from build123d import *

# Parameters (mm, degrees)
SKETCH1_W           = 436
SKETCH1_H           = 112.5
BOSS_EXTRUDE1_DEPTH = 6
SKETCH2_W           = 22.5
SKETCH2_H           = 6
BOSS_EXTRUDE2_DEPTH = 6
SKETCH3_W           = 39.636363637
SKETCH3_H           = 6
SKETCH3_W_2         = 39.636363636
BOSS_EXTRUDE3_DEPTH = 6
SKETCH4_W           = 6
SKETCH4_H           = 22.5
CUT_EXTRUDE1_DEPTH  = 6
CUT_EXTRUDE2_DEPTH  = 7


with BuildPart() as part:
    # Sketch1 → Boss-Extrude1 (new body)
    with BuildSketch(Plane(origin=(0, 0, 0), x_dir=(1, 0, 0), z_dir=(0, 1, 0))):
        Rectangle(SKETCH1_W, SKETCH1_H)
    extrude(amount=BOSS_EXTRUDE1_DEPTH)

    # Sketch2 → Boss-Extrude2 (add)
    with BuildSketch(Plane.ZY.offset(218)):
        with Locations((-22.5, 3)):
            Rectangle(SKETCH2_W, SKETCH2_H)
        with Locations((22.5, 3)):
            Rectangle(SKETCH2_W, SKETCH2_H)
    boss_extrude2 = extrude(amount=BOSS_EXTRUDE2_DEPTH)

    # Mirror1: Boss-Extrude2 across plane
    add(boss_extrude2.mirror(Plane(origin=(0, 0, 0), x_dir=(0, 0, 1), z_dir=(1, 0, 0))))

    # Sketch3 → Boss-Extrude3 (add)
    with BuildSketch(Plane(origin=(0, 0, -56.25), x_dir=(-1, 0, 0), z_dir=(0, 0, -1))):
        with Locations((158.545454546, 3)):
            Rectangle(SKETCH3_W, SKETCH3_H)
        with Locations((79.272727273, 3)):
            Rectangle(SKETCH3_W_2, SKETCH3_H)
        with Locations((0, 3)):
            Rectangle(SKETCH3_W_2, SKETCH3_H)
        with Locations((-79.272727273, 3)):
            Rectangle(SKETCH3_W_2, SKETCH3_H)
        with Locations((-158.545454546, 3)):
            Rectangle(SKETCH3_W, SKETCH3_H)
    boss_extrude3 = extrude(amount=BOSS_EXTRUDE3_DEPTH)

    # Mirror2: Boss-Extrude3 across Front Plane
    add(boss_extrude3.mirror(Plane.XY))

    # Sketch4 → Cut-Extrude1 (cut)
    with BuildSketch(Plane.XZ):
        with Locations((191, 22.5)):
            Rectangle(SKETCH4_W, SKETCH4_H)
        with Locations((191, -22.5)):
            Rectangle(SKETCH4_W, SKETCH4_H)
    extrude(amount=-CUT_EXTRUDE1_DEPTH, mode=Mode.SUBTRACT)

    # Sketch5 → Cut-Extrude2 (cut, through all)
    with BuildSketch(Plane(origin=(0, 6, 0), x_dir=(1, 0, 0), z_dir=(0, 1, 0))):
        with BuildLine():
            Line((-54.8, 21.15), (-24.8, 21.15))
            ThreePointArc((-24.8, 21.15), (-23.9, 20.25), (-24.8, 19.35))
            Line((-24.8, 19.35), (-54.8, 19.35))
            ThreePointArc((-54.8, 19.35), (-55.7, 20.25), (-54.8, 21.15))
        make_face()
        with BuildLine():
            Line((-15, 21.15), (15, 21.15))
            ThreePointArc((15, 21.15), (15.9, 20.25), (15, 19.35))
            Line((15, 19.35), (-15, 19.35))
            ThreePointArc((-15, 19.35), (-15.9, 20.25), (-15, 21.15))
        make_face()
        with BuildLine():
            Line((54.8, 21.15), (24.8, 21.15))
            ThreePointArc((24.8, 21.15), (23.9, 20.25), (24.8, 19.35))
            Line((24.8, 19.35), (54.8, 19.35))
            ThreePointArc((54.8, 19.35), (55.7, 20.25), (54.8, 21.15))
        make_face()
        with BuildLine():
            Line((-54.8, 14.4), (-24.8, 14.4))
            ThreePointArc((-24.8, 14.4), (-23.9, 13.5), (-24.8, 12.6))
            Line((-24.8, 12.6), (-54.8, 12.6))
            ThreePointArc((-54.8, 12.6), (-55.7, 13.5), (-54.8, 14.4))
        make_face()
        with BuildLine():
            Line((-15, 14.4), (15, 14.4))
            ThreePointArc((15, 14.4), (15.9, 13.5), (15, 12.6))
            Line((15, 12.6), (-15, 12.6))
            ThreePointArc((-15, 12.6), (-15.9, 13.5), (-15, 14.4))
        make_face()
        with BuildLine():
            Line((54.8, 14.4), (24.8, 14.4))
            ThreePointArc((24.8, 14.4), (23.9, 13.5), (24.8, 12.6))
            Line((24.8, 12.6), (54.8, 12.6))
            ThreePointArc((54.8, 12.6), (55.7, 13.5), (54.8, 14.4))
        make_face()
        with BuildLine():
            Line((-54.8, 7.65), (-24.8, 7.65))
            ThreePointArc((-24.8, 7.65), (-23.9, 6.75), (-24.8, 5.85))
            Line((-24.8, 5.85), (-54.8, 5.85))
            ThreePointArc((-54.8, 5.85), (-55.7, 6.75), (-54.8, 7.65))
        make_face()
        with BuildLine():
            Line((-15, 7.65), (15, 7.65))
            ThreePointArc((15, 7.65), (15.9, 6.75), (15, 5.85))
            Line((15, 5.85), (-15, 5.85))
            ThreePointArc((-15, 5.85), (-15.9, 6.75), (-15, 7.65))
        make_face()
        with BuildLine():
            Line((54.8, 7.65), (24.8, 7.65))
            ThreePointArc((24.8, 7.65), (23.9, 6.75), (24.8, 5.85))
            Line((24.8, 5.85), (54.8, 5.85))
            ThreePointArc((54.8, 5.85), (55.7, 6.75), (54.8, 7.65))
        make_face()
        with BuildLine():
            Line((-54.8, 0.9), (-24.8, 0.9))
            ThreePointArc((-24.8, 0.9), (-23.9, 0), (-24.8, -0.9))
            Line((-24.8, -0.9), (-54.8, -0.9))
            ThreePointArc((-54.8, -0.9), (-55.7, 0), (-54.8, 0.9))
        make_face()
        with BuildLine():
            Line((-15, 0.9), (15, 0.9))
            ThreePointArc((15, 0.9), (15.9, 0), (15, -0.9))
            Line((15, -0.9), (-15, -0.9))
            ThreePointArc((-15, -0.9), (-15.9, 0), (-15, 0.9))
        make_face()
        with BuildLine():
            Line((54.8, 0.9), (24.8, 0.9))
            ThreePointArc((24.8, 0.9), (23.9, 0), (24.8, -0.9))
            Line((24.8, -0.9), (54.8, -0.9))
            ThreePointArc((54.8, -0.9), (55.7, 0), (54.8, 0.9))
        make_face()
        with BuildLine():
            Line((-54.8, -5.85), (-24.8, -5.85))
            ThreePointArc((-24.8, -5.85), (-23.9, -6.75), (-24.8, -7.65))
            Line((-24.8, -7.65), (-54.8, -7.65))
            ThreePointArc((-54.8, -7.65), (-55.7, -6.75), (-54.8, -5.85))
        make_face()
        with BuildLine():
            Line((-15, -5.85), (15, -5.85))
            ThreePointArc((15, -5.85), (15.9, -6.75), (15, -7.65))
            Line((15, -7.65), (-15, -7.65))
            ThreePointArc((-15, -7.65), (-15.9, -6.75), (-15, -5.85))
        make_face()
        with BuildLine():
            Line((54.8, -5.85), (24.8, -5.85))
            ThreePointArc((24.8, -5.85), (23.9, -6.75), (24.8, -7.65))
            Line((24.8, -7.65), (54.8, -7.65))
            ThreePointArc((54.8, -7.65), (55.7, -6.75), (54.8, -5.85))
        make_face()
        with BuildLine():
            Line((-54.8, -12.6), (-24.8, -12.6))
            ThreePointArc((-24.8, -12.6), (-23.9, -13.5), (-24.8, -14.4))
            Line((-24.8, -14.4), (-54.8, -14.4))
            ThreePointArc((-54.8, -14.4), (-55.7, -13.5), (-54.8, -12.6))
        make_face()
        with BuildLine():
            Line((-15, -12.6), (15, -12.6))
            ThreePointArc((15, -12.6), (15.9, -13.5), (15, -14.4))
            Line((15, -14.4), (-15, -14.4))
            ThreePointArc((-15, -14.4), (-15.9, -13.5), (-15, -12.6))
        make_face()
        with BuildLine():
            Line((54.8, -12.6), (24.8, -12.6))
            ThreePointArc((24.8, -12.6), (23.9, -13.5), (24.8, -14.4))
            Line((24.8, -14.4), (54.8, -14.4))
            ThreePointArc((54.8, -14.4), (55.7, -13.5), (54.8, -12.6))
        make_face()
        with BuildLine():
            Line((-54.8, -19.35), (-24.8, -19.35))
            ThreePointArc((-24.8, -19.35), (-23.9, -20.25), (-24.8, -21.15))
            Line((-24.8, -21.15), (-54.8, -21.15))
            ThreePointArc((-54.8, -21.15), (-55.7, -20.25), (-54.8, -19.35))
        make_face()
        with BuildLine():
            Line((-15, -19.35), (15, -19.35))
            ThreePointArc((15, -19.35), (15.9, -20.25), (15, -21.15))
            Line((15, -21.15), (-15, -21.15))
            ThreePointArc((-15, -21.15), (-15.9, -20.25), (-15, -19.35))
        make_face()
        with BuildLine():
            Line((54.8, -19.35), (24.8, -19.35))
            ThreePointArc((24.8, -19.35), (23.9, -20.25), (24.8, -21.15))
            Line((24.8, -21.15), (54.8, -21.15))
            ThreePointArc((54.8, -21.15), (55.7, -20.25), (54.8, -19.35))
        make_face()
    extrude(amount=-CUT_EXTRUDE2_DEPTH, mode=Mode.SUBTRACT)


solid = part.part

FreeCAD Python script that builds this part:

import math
import FreeCAD as App
import Part
import Sketcher
from FreeCAD import Vector


def add_polygon(sketch, points):
    """Adds a closed chain of lines whose ends are joined by coincident constraints."""
    first, n = sketch.GeometryCount, len(points)
    for a, b in zip(points, points[1:] + points[:1]):
        sketch.addGeometry(Part.LineSegment(App.Vector(*a, 0), App.Vector(*b, 0)), False)
    for i in range(n):
        sketch.addConstraint(Sketcher.Constraint("Coincident", first + i, 2, first + (i + 1) % n, 1))

doc = App.newDocument("Part")
body = doc.addObject("PartDesign::Body", "Body")

sketch1 = body.newObject("Sketcher::SketchObject", "Sketch")
sketch1.AttachmentSupport = (doc.getObject("XZ_Plane"), [""])
sketch1.MapMode = "FlatFace"
add_polygon(sketch1, [(-218, -56), (-218, 56), (218, 56), (218, -56)])
sketch1.addConstraint([
    Sketcher.Constraint("Vertical", 0),
    Sketcher.Constraint("Horizontal", 1),
    Sketcher.Constraint("Vertical", 2),
    Sketcher.Constraint("Horizontal", 3),
    Sketcher.Constraint("Symmetric", 0, 2, 2, 2, -1, 1),
    Sketcher.Constraint("DistanceX", 1, 1, 1, 2, 436.0),
    Sketcher.Constraint("DistanceY", 0, 1, 0, 2, 112.5),
])
pad1 = body.newObject("PartDesign::Pad", "Pad")
pad1.Profile = sketch1
pad1.Length = 6
pad1.Reversed = True

sketch2 = body.newObject("Sketcher::SketchObject", "Sketch001")
sketch2.AttachmentSupport = (doc.getObject("YZ_Plane"), [""])
sketch2.MapMode = "FlatFace"
sketch2.AttachmentOffset = App.Placement(Vector(0, 0, -218), App.Rotation())
add_polygon(sketch2, [(6, -34), (0, -34), (0, -11), (6, -11)])
add_polygon(sketch2, [(6, 11), (0, 11), (0, 34), (6, 34)])
sketch2.addConstraint([
    Sketcher.Constraint("Horizontal", 0),
    Sketcher.Constraint("Vertical", 1),
    Sketcher.Constraint("Horizontal", 2),
    Sketcher.Constraint("Vertical", 3),
    Sketcher.Constraint("Horizontal", 4),
    Sketcher.Constraint("Vertical", 5),
    Sketcher.Constraint("Horizontal", 6),
    Sketcher.Constraint("Vertical", 7),
    Sketcher.Constraint("Symmetric", 1, 2, 4, 2, -1, 1),
    Sketcher.Constraint("Symmetric", 0, 2, 5, 2, -1),
    Sketcher.Constraint("Vertical", 3, 2, 6, 2),
    Sketcher.Constraint("DistanceX", 0, 2, 0, 1, 6.0),
    Sketcher.Constraint("DistanceY", 1, 1, 1, 2, 22.5),
    Sketcher.Constraint("DistanceY", 0, 2, 4, 2, 45.0),
])
pad2 = body.newObject("PartDesign::Pad", "Pad001")
pad2.Profile = sketch2
pad2.Length = 6
pad2.Reversed = True
doc.recompute()

mirrored = body.newObject("PartDesign::Mirrored", "Mirrored")
mirrored.Originals = [pad2]
mirrored.MirrorPlane = (doc.getObject("YZ_Plane"), [""])
body.Tip = mirrored

sketch3 = body.newObject("Sketcher::SketchObject", "Sketch002")
sketch3.AttachmentSupport = (doc.getObject("XY_Plane"), [""])
sketch3.MapMode = "FlatFace"
sketch3.AttachmentOffset = App.Placement(Vector(0, 0, -56.25), App.Rotation())
add_polygon(sketch3, [(-139, 6), (-139, 0), (-178, 0), (-178, 6)])
add_polygon(sketch3, [(-59, 6), (-59, 0), (-99, 0), (-99, 6)])
add_polygon(sketch3, [(20, 6), (20, 0), (-20, 0), (-20, 6)])
add_polygon(sketch3, [(99, 6), (99, 0), (59, 0), (59, 6)])
add_polygon(sketch3, [(178, 6), (178, 0), (139, 0), (139, 6)])
sketch3.addConstraint([
    Sketcher.Constraint("Vertical", 0),
    Sketcher.Constraint("Horizontal", 1),
    Sketcher.Constraint("Vertical", 2),
    Sketcher.Constraint("Horizontal", 3),
    Sketcher.Constraint("Vertical", 4),
    Sketcher.Constraint("Horizontal", 5),
    Sketcher.Constraint("Vertical", 6),
    Sketcher.Constraint("Horizontal", 7),
    Sketcher.Constraint("Vertical", 8),
    Sketcher.Constraint("Horizontal", 9),
    Sketcher.Constraint("Vertical", 10),
    Sketcher.Constraint("Horizontal", 11),
    Sketcher.Constraint("Vertical", 12),
    Sketcher.Constraint("Horizontal", 13),
    Sketcher.Constraint("Vertical", 14),
    Sketcher.Constraint("Horizontal", 15),
    Sketcher.Constraint("Vertical", 16),
    Sketcher.Constraint("Horizontal", 17),
    Sketcher.Constraint("Vertical", 18),
    Sketcher.Constraint("Horizontal", 19),
    Sketcher.Constraint("Symmetric", 8, 2, 9, 2, -1, 1),
    Sketcher.Constraint("Symmetric", 5, 2, 12, 2, -1, 1),
    Sketcher.Constraint("Symmetric", 1, 2, 16, 2, -1, 1),
    Sketcher.Constraint("Symmetric", 4, 2, 13, 2, -2),
    Sketcher.Constraint("Symmetric", 0, 2, 17, 2, -2),
    Sketcher.Constraint("Horizontal", 3, 2, 6, 2),
    Sketcher.Constraint("Horizontal", 7, 2, 10, 2),
    Sketcher.Constraint("Horizontal", 11, 2, 14, 2),
    Sketcher.Constraint("Horizontal", 15, 2, 18, 2),
    Sketcher.Constraint("Equal", 3, 5),
    Sketcher.Constraint("Equal", 7, 9),
    Sketcher.Constraint("DistanceY", 0, 2, 0, 1, 6.0),
    Sketcher.Constraint("DistanceX", 1, 2, 1, 1, 39.636364),
    Sketcher.Constraint("DistanceX", 5, 2, -1, 1, 99.090909),
    Sketcher.Constraint("DistanceX", 1, 2, 4, 2, 118.909091),
])
pad3 = body.newObject("PartDesign::Pad", "Pad002")
pad3.Profile = sketch3
pad3.Length = 6
pad3.Reversed = True
doc.recompute()

mirrored2 = body.newObject("PartDesign::Mirrored", "Mirrored001")
mirrored2.Originals = [pad3]
mirrored2.MirrorPlane = (doc.getObject("XY_Plane"), [""])
body.Tip = mirrored2

sketch4 = body.newObject("Sketcher::SketchObject", "Sketch003")
sketch4.AttachmentSupport = (doc.getObject("XZ_Plane"), [""])
sketch4.MapMode = "FlatFace"
add_polygon(sketch4, [(188, 34), (188, 11), (194, 11), (194, 34)])
add_polygon(sketch4, [(188, -11), (188, -34), (194, -34), (194, -11)])
sketch4.addConstraint([
    Sketcher.Constraint("Vertical", 0),
    Sketcher.Constraint("Horizontal", 1),
    Sketcher.Constraint("Vertical", 2),
    Sketcher.Constraint("Horizontal", 3),
    Sketcher.Constraint("Vertical", 4),
    Sketcher.Constraint("Horizontal", 5),
    Sketcher.Constraint("Vertical", 6),
    Sketcher.Constraint("Horizontal", 7),
    Sketcher.Constraint("Symmetric", 3, 2, 4, 2, -1),
    Sketcher.Constraint("Symmetric", 1, 2, 6, 2, -1),
    Sketcher.Constraint("DistanceX", 1, 1, 1, 2, 6.0),
    Sketcher.Constraint("DistanceY", 0, 2, 0, 1, 22.5),
    Sketcher.Constraint("DistanceX", -1, 1, 0, 2, 188.0),
    Sketcher.Constraint("DistanceY", 4, 2, 0, 2, 45.0),
])
pocket1 = body.newObject("PartDesign::Pocket", "Pocket")
pocket1.Profile = sketch4
pocket1.Length = 6

sketch5 = body.newObject("Sketcher::SketchObject", "Sketch004")
sketch5.AttachmentSupport = (doc.getObject("XZ_Plane"), [""])
sketch5.MapMode = "FlatFace"
sketch5.AttachmentOffset = App.Placement(Vector(0, 0, -6), App.Rotation())
sketch5.addGeometry([
    Part.LineSegment(Vector(-24.8, -21.1, 0), Vector(-54.8, -21.1, 0)),
    Part.ArcOfCircle(Part.Circle(Vector(-54.8, -20.2, 0), Vector(0, 0, 1), 0.9), math.radians(90), math.radians(270)),
    Part.LineSegment(Vector(-54.8, -19.4, 0), Vector(-24.8, -19.4, 0)),
    Part.ArcOfCircle(Part.Circle(Vector(-24.8, -20.2, 0), Vector(0, 0, 1), 0.9), math.radians(-90), math.radians(90)),
    Part.LineSegment(Vector(15, -21.1, 0), Vector(-15, -21.1, 0)),
    Part.ArcOfCircle(Part.Circle(Vector(-15, -20.2, 0), Vector(0, 0, 1), 0.9), math.radians(90), math.radians(270)),
    Part.LineSegment(Vector(-15, -19.4, 0), Vector(15, -19.4, 0)),
    Part.ArcOfCircle(Part.Circle(Vector(15, -20.2, 0), Vector(0, 0, 1), 0.9), math.radians(-90), math.radians(90)),
    Part.LineSegment(Vector(54.8, -21.1, 0), Vector(24.8, -21.1, 0)),
    Part.ArcOfCircle(Part.Circle(Vector(24.8, -20.2, 0), Vector(0, 0, 1), 0.9), math.radians(90), math.radians(270)),
    Part.LineSegment(Vector(24.8, -19.4, 0), Vector(54.8, -19.4, 0)),
    Part.ArcOfCircle(Part.Circle(Vector(54.8, -20.2, 0), Vector(0, 0, 1), 0.9), math.radians(-90), math.radians(90)),
    Part.LineSegment(Vector(-24.8, -14.4, 0), Vector(-54.8, -14.4, 0)),
    Part.ArcOfCircle(Part.Circle(Vector(-54.8, -13.5, 0), Vector(0, 0, 1), 0.9), math.radians(90), math.radians(270)),
    Part.LineSegment(Vector(-54.8, -12.6, 0), Vector(-24.8, -12.6, 0)),
    Part.ArcOfCircle(Part.Circle(Vector(-24.8, -13.5, 0), Vector(0, 0, 1), 0.9), math.radians(-90), math.radians(90)),
    Part.LineSegment(Vector(15, -14.4, 0), Vector(-15, -14.4, 0)),
    Part.ArcOfCircle(Part.Circle(Vector(-15, -13.5, 0), Vector(0, 0, 1), 0.9), math.radians(90), math.radians(270)),
    Part.LineSegment(Vector(-15, -12.6, 0), Vector(15, -12.6, 0)),
    Part.ArcOfCircle(Part.Circle(Vector(15, -13.5, 0), Vector(0, 0, 1), 0.9), math.radians(-90), math.radians(90)),
    Part.LineSegment(Vector(54.8, -14.4, 0), Vector(24.8, -14.4, 0)),
    Part.ArcOfCircle(Part.Circle(Vector(24.8, -13.5, 0), Vector(0, 0, 1), 0.9), math.radians(90), math.radians(270)),
    Part.LineSegment(Vector(24.8, -12.6, 0), Vector(54.8, -12.6, 0)),
    Part.ArcOfCircle(Part.Circle(Vector(54.8, -13.5, 0), Vector(0, 0, 1), 0.9), math.radians(-90), math.radians(90)),
    Part.LineSegment(Vector(-24.8, -7.7, 0), Vector(-54.8, -7.7, 0)),
    Part.ArcOfCircle(Part.Circle(Vector(-54.8, -6.8, 0), Vector(0, 0, 1), 0.9), math.radians(90), math.radians(270)),
    Part.LineSegment(Vector(-54.8, -5.8, 0), Vector(-24.8, -5.8, 0)),
    Part.ArcOfCircle(Part.Circle(Vector(-24.8, -6.8, 0), Vector(0, 0, 1), 0.9), math.radians(-90), math.radians(90)),
    Part.LineSegment(Vector(15, -7.7, 0), Vector(-15, -7.7, 0)),
    Part.ArcOfCircle(Part.Circle(Vector(-15, -6.8, 0), Vector(0, 0, 1), 0.9), math.radians(90), math.radians(270)),
    Part.LineSegment(Vector(-15, -5.8, 0), Vector(15, -5.8, 0)),
    Part.ArcOfCircle(Part.Circle(Vector(15, -6.8, 0), Vector(0, 0, 1), 0.9), math.radians(-90), math.radians(90)),
    Part.LineSegment(Vector(54.8, -7.7, 0), Vector(24.8, -7.7, 0)),
    Part.ArcOfCircle(Part.Circle(Vector(24.8, -6.8, 0), Vector(0, 0, 1), 0.9), math.radians(90), math.radians(270)),
    Part.LineSegment(Vector(24.8, -5.8, 0), Vector(54.8, -5.8, 0)),
    Part.ArcOfCircle(Part.Circle(Vector(54.8, -6.8, 0), Vector(0, 0, 1), 0.9), math.radians(-90), math.radians(90)),
    Part.LineSegment(Vector(-24.8, -0.9, 0), Vector(-54.8, -0.9, 0)),
    Part.ArcOfCircle(Part.Circle(Vector(-54.8, 0, 0), Vector(0, 0, 1), 0.9), math.radians(90), math.radians(270)),
    Part.LineSegment(Vector(-54.8, 0.9, 0), Vector(-24.8, 0.9, 0)),
    Part.ArcOfCircle(Part.Circle(Vector(-24.8, 0, 0), Vector(0, 0, 1), 0.9), math.radians(-90), math.radians(90)),
    Part.LineSegment(Vector(15, -0.9, 0), Vector(-15, -0.9, 0)),
    Part.ArcOfCircle(Part.Circle(Vector(-15, 0, 0), Vector(0, 0, 1), 0.9), math.radians(90), math.radians(270)),
    Part.LineSegment(Vector(-15, 0.9, 0), Vector(15, 0.9, 0)),
    Part.ArcOfCircle(Part.Circle(Vector(15, 0, 0), Vector(0, 0, 1), 0.9), math.radians(-90), math.radians(90)),
    Part.LineSegment(Vector(54.8, -0.9, 0), Vector(24.8, -0.9, 0)),
    Part.ArcOfCircle(Part.Circle(Vector(24.8, 0, 0), Vector(0, 0, 1), 0.9), math.radians(90), math.radians(270)),
    Part.LineSegment(Vector(24.8, 0.9, 0), Vector(54.8, 0.9, 0)),
    Part.ArcOfCircle(Part.Circle(Vector(54.8, 0, 0), Vector(0, 0, 1), 0.9), math.radians(-90), math.radians(90)),
    Part.LineSegment(Vector(-24.8, 5.8, 0), Vector(-54.8, 5.8, 0)),
    Part.ArcOfCircle(Part.Circle(Vector(-54.8, 6.8, 0), Vector(0, 0, 1), 0.9), math.radians(90), math.radians(270)),
    Part.LineSegment(Vector(-54.8, 7.7, 0), Vector(-24.8, 7.7, 0)),
    Part.ArcOfCircle(Part.Circle(Vector(-24.8, 6.8, 0), Vector(0, 0, 1), 0.9), math.radians(-90), math.radians(90)),
    Part.LineSegment(Vector(15, 5.8, 0), Vector(-15, 5.8, 0)),
    Part.ArcOfCircle(Part.Circle(Vector(-15, 6.8, 0), Vector(0, 0, 1), 0.9), math.radians(90), math.radians(270)),
    Part.LineSegment(Vector(-15, 7.7, 0), Vector(15, 7.7, 0)),
    Part.ArcOfCircle(Part.Circle(Vector(15, 6.8, 0), Vector(0, 0, 1), 0.9), math.radians(-90), math.radians(90)),
    Part.LineSegment(Vector(54.8, 5.8, 0), Vector(24.8, 5.8, 0)),
    Part.ArcOfCircle(Part.Circle(Vector(24.8, 6.8, 0), Vector(0, 0, 1), 0.9), math.radians(90), math.radians(270)),
    Part.LineSegment(Vector(24.8, 7.7, 0), Vector(54.8, 7.7, 0)),
    Part.ArcOfCircle(Part.Circle(Vector(54.8, 6.8, 0), Vector(0, 0, 1), 0.9), math.radians(-90), math.radians(90)),
    Part.LineSegment(Vector(-24.8, 12.6, 0), Vector(-54.8, 12.6, 0)),
    Part.ArcOfCircle(Part.Circle(Vector(-54.8, 13.5, 0), Vector(0, 0, 1), 0.9), math.radians(90), math.radians(270)),
    Part.LineSegment(Vector(-54.8, 14.4, 0), Vector(-24.8, 14.4, 0)),
    Part.ArcOfCircle(Part.Circle(Vector(-24.8, 13.5, 0), Vector(0, 0, 1), 0.9), math.radians(-90), math.radians(90)),
    Part.LineSegment(Vector(15, 12.6, 0), Vector(-15, 12.6, 0)),
    Part.ArcOfCircle(Part.Circle(Vector(-15, 13.5, 0), Vector(0, 0, 1), 0.9), math.radians(90), math.radians(270)),
    Part.LineSegment(Vector(-15, 14.4, 0), Vector(15, 14.4, 0)),
    Part.ArcOfCircle(Part.Circle(Vector(15, 13.5, 0), Vector(0, 0, 1), 0.9), math.radians(-90), math.radians(90)),
    Part.LineSegment(Vector(54.8, 12.6, 0), Vector(24.8, 12.6, 0)),
    Part.ArcOfCircle(Part.Circle(Vector(24.8, 13.5, 0), Vector(0, 0, 1), 0.9), math.radians(90), math.radians(270)),
    Part.LineSegment(Vector(24.8, 14.4, 0), Vector(54.8, 14.4, 0)),
    Part.ArcOfCircle(Part.Circle(Vector(54.8, 13.5, 0), Vector(0, 0, 1), 0.9), math.radians(-90), math.radians(90)),
    Part.LineSegment(Vector(-24.8, 19.4, 0), Vector(-54.8, 19.4, 0)),
    Part.ArcOfCircle(Part.Circle(Vector(-54.8, 20.2, 0), Vector(0, 0, 1), 0.9), math.radians(90), math.radians(270)),
    Part.LineSegment(Vector(-54.8, 21.1, 0), Vector(-24.8, 21.1, 0)),
    Part.ArcOfCircle(Part.Circle(Vector(-24.8, 20.2, 0), Vector(0, 0, 1), 0.9), math.radians(-90), math.radians(90)),
    Part.LineSegment(Vector(15, 19.4, 0), Vector(-15, 19.4, 0)),
    Part.ArcOfCircle(Part.Circle(Vector(-15, 20.2, 0), Vector(0, 0, 1), 0.9), math.radians(90), math.radians(270)),
    Part.LineSegment(Vector(-15, 21.1, 0), Vector(15, 21.1, 0)),
    Part.ArcOfCircle(Part.Circle(Vector(15, 20.2, 0), Vector(0, 0, 1), 0.9), math.radians(-90), math.radians(90)),
    Part.LineSegment(Vector(54.8, 19.4, 0), Vector(24.8, 19.4, 0)),
    Part.ArcOfCircle(Part.Circle(Vector(24.8, 20.2, 0), Vector(0, 0, 1), 0.9), math.radians(90), math.radians(270)),
    Part.LineSegment(Vector(24.8, 21.1, 0), Vector(54.8, 21.1, 0)),
    Part.ArcOfCircle(Part.Circle(Vector(54.8, 20.2, 0), Vector(0, 0, 1), 0.9), math.radians(-90), math.radians(90)),
], False)
sketch5.addConstraint([
    Sketcher.Constraint("Tangent", 0, 2, 1, 2),
    Sketcher.Constraint("Tangent", 1, 1, 2, 1),
    Sketcher.Constraint("Tangent", 2, 2, 3, 2),
    Sketcher.Constraint("Tangent", 3, 1, 0, 1),
    Sketcher.Constraint("Tangent", 4, 2, 5, 2),
    Sketcher.Constraint("Tangent", 5, 1, 6, 1),
    Sketcher.Constraint("Tangent", 6, 2, 7, 2),
    Sketcher.Constraint("Tangent", 7, 1, 4, 1),
    Sketcher.Constraint("Tangent", 8, 2, 9, 2),
    Sketcher.Constraint("Tangent", 9, 1, 10, 1),
    Sketcher.Constraint("Tangent", 10, 2, 11, 2),
    Sketcher.Constraint("Tangent", 11, 1, 8, 1),
    Sketcher.Constraint("Tangent", 12, 2, 13, 2),
    Sketcher.Constraint("Tangent", 13, 1, 14, 1),
    Sketcher.Constraint("Tangent", 14, 2, 15, 2),
    Sketcher.Constraint("Tangent", 15, 1, 12, 1),
    Sketcher.Constraint("Tangent", 16, 2, 17, 2),
    Sketcher.Constraint("Tangent", 17, 1, 18, 1),
    Sketcher.Constraint("Tangent", 18, 2, 19, 2),
    Sketcher.Constraint("Tangent", 19, 1, 16, 1),
    Sketcher.Constraint("Tangent", 20, 2, 21, 2),
    Sketcher.Constraint("Tangent", 21, 1, 22, 1),
    Sketcher.Constraint("Tangent", 22, 2, 23, 2),
    Sketcher.Constraint("Tangent", 23, 1, 20, 1),
    Sketcher.Constraint("Tangent", 24, 2, 25, 2),
    Sketcher.Constraint("Tangent", 25, 1, 26, 1),
    Sketcher.Constraint("Tangent", 26, 2, 27, 2),
    Sketcher.Constraint("Tangent", 27, 1, 24, 1),
    Sketcher.Constraint("Tangent", 28, 2, 29, 2),
    Sketcher.Constraint("Tangent", 29, 1, 30, 1),
    Sketcher.Constraint("Tangent", 30, 2, 31, 2),
    Sketcher.Constraint("Tangent", 31, 1, 28, 1),
    Sketcher.Constraint("Tangent", 32, 2, 33, 2),
    Sketcher.Constraint("Tangent", 33, 1, 34, 1),
    Sketcher.Constraint("Tangent", 34, 2, 35, 2),
    Sketcher.Constraint("Tangent", 35, 1, 32, 1),
    Sketcher.Constraint("Tangent", 36, 2, 37, 2),
    Sketcher.Constraint("Tangent", 37, 1, 38, 1),
    Sketcher.Constraint("Tangent", 38, 2, 39, 2),
    Sketcher.Constraint("Tangent", 39, 1, 36, 1),
    Sketcher.Constraint("Tangent", 40, 2, 41, 2),
    Sketcher.Constraint("Tangent", 41, 1, 42, 1),
    Sketcher.Constraint("Tangent", 42, 2, 43, 2),
    Sketcher.Constraint("Tangent", 43, 1, 40, 1),
    Sketcher.Constraint("Tangent", 44, 2, 45, 2),
    Sketcher.Constraint("Tangent", 45, 1, 46, 1),
    Sketcher.Constraint("Tangent", 46, 2, 47, 2),
    Sketcher.Constraint("Tangent", 47, 1, 44, 1),
    Sketcher.Constraint("Tangent", 48, 2, 49, 2),
    Sketcher.Constraint("Tangent", 49, 1, 50, 1),
    Sketcher.Constraint("Tangent", 50, 2, 51, 2),
    Sketcher.Constraint("Tangent", 51, 1, 48, 1),
    Sketcher.Constraint("Tangent", 52, 2, 53, 2),
    Sketcher.Constraint("Tangent", 53, 1, 54, 1),
    Sketcher.Constraint("Tangent", 54, 2, 55, 2),
    Sketcher.Constraint("Tangent", 55, 1, 52, 1),
    Sketcher.Constraint("Tangent", 56, 2, 57, 2),
    Sketcher.Constraint("Tangent", 57, 1, 58, 1),
    Sketcher.Constraint("Tangent", 58, 2, 59, 2),
    Sketcher.Constraint("Tangent", 59, 1, 56, 1),
    Sketcher.Constraint("Tangent", 60, 2, 61, 2),
    Sketcher.Constraint("Tangent", 61, 1, 62, 1),
    Sketcher.Constraint("Tangent", 62, 2, 63, 2),
    Sketcher.Constraint("Tangent", 63, 1, 60, 1),
    Sketcher.Constraint("Tangent", 64, 2, 65, 2),
    Sketcher.Constraint("Tangent", 65, 1, 66, 1),
    Sketcher.Constraint("Tangent", 66, 2, 67, 2),
    Sketcher.Constraint("Tangent", 67, 1, 64, 1),
    Sketcher.Constraint("Tangent", 68, 2, 69, 2),
    Sketcher.Constraint("Tangent", 69, 1, 70, 1),
    Sketcher.Constraint("Tangent", 70, 2, 71, 2),
    Sketcher.Constraint("Tangent", 71, 1, 68, 1),
    Sketcher.Constraint("Tangent", 72, 2, 73, 2),
    Sketcher.Constraint("Tangent", 73, 1, 74, 1),
    Sketcher.Constraint("Tangent", 74, 2, 75, 2),
    Sketcher.Constraint("Tangent", 75, 1, 72, 1),
    Sketcher.Constraint("Tangent", 76, 2, 77, 2),
    Sketcher.Constraint("Tangent", 77, 1, 78, 1),
    Sketcher.Constraint("Tangent", 78, 2, 79, 2),
    Sketcher.Constraint("Tangent", 79, 1, 76, 1),
    Sketcher.Constraint("Tangent", 80, 2, 81, 2),
    Sketcher.Constraint("Tangent", 81, 1, 82, 1),
    Sketcher.Constraint("Tangent", 82, 2, 83, 2),
    Sketcher.Constraint("Tangent", 83, 1, 80, 1),
    Sketcher.Constraint("Horizontal", 0),
    Sketcher.Constraint("Horizontal", 2),
    Sketcher.Constraint("Horizontal", 4),
    Sketcher.Constraint("Horizontal", 6),
    Sketcher.Constraint("Horizontal", 8),
    Sketcher.Constraint("Horizontal", 10),
    Sketcher.Constraint("Horizontal", 12),
    Sketcher.Constraint("Horizontal", 14),
    Sketcher.Constraint("Horizontal", 16),
    Sketcher.Constraint("Horizontal", 18),
    Sketcher.Constraint("Horizontal", 20),
    Sketcher.Constraint("Horizontal", 22),
    Sketcher.Constraint("Horizontal", 24),
    Sketcher.Constraint("Horizontal", 26),
    Sketcher.Constraint("Horizontal", 28),
    Sketcher.Constraint("Horizontal", 30),
    Sketcher.Constraint("Horizontal", 32),
    Sketcher.Constraint("Horizontal", 34),
    Sketcher.Constraint("Horizontal", 36),
    Sketcher.Constraint("Horizontal", 38),
    Sketcher.Constraint("Horizontal", 40),
    Sketcher.Constraint("Horizontal", 42),
    Sketcher.Constraint("Horizontal", 44),
    Sketcher.Constraint("Horizontal", 46),
    Sketcher.Constraint("Horizontal", 48),
    Sketcher.Constraint("Horizontal", 50),
    Sketcher.Constraint("Horizontal", 52),
    Sketcher.Constraint("Horizontal", 54),
    Sketcher.Constraint("Horizontal", 56),
    Sketcher.Constraint("Horizontal", 58),
    Sketcher.Constraint("Horizontal", 60),
    Sketcher.Constraint("Horizontal", 62),
    Sketcher.Constraint("Horizontal", 64),
    Sketcher.Constraint("Horizontal", 66),
    Sketcher.Constraint("Horizontal", 68),
    Sketcher.Constraint("Horizontal", 70),
    Sketcher.Constraint("Horizontal", 72),
    Sketcher.Constraint("Horizontal", 74),
    Sketcher.Constraint("Horizontal", 76),
    Sketcher.Constraint("Horizontal", 78),
    Sketcher.Constraint("Horizontal", 80),
    Sketcher.Constraint("Horizontal", 82),
    Sketcher.Constraint("Equal", 3, 5),
    Sketcher.Constraint("Equal", 7, 9),
    Sketcher.Constraint("Equal", 11, 13),
    Sketcher.Constraint("Equal", 15, 17),
    Sketcher.Constraint("Equal", 19, 21),
    Sketcher.Constraint("Equal", 23, 25),
    Sketcher.Constraint("Equal", 27, 29),
    Sketcher.Constraint("Equal", 31, 33),
    Sketcher.Constraint("Equal", 35, 37),
    Sketcher.Constraint("Equal", 39, 41),
    Sketcher.Constraint("Equal", 43, 45),
    Sketcher.Constraint("Equal", 47, 49),
    Sketcher.Constraint("Equal", 51, 53),
    Sketcher.Constraint("Equal", 55, 57),
    Sketcher.Constraint("Equal", 59, 61),
    Sketcher.Constraint("Equal", 63, 65),
    Sketcher.Constraint("Equal", 67, 69),
    Sketcher.Constraint("Equal", 71, 73),
    Sketcher.Constraint("Equal", 75, 77),
    Sketcher.Constraint("Equal", 79, 81),
    Sketcher.Constraint("Symmetric", 41, 3, 43, 3, -1, 1),
    Sketcher.Constraint("Symmetric", 39, 3, 45, 3, -1, 1),
    Sketcher.Constraint("Symmetric", 35, 3, 49, 3, -1, 1),
    Sketcher.Constraint("Symmetric", 31, 3, 53, 3, -1, 1),
    Sketcher.Constraint("Symmetric", 27, 3, 57, 3, -1, 1),
    Sketcher.Constraint("Symmetric", 23, 3, 61, 3, -1, 1),
    Sketcher.Constraint("Symmetric", 19, 3, 65, 3, -1, 1),
    Sketcher.Constraint("Symmetric", 15, 3, 69, 3, -1, 1),
    Sketcher.Constraint("Symmetric", 11, 3, 73, 3, -1, 1),
    Sketcher.Constraint("Symmetric", 7, 3, 77, 3, -1, 1),
    Sketcher.Constraint("Symmetric", 3, 3, 81, 3, -1, 1),
    Sketcher.Constraint("Symmetric", 3, 3, 9, 3, -2),
    Sketcher.Constraint("Symmetric", 15, 3, 21, 3, -2),
    Sketcher.Constraint("Symmetric", 27, 3, 33, 3, -2),
    Sketcher.Constraint("Symmetric", 37, 3, 47, 3, -2),
    Sketcher.Constraint("Horizontal", 3, 3, 5, 3),
    Sketcher.Constraint("Horizontal", 15, 3, 17, 3),
    Sketcher.Constraint("Horizontal", 27, 3, 29, 3),
    Sketcher.Constraint("Vertical", 1, 3, 13, 3),
    Sketcher.Constraint("Vertical", 3, 3, 15, 3),
    Sketcher.Constraint("Vertical", 5, 3, 17, 3),
    Sketcher.Constraint("Vertical", 7, 3, 19, 3),
    Sketcher.Constraint("Vertical", 11, 3, 23, 3),
    Sketcher.Constraint("Vertical", 13, 3, 25, 3),
    Sketcher.Constraint("Vertical", 15, 3, 27, 3),
    Sketcher.Constraint("Vertical", 17, 3, 29, 3),
    Sketcher.Constraint("Vertical", 19, 3, 31, 3),
    Sketcher.Constraint("Vertical", 23, 3, 35, 3),
    Sketcher.Constraint("Vertical", 25, 3, 37, 3),
    Sketcher.Constraint("Vertical", 27, 3, 39, 3),
    Sketcher.Constraint("Vertical", 29, 3, 41, 3),
    Sketcher.Constraint("Vertical", 31, 3, 43, 3),
    Sketcher.Constraint("Vertical", 35, 3, 47, 3),
    Sketcher.Constraint("Vertical", 39, 3, 51, 3),
    Sketcher.Constraint("Vertical", 43, 3, 55, 3),
    Sketcher.Constraint("Vertical", 47, 3, 59, 3),
    Sketcher.Constraint("Vertical", 51, 3, 63, 3),
    Sketcher.Constraint("Vertical", 55, 3, 67, 3),
    Sketcher.Constraint("Vertical", 59, 3, 71, 3),
    Sketcher.Constraint("Vertical", 63, 3, 75, 3),
    Sketcher.Constraint("Vertical", 67, 3, 79, 3),
    Sketcher.Constraint("Vertical", 71, 3, 83, 3),
    Sketcher.Constraint("Equal", 2, 4),
    Sketcher.Constraint("Radius", 1, 0.9),
    Sketcher.Constraint("DistanceX", 0, 2, 0, 1, 30.0),
    Sketcher.Constraint("DistanceX", 1, 3, -1, 1, 54.8),
    Sketcher.Constraint("DistanceY", 13, 3, -1, 1, 13.5),
    Sketcher.Constraint("DistanceY", 1, 3, -1, 1, 20.25),
    Sketcher.Constraint("DistanceY", 25, 3, -1, 1, 6.75),
])
pocket2 = body.newObject("PartDesign::Pocket", "Pocket001")
pocket2.Profile = sketch5
pocket2.Type = "ThroughAll"
pocket2.Reversed = True

doc.recompute()
